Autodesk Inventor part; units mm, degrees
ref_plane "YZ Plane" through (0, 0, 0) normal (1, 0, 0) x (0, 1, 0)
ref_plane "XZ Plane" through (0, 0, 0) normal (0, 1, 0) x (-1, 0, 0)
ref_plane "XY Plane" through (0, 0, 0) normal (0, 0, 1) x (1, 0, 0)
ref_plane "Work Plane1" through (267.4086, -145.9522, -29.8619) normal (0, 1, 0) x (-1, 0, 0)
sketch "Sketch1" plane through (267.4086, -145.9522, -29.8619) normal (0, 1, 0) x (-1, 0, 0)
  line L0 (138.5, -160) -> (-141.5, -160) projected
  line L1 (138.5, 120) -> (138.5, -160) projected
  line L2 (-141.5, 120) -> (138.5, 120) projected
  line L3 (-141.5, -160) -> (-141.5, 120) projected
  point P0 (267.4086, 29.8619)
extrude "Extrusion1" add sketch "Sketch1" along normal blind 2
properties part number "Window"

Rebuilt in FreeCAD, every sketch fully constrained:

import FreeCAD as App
import Part
import Sketcher
from FreeCAD import Vector
Q = App.Units.Quantity


def add_polygon(sketch, points):
    """Adds a closed chain of lines whose ends are joined by coincident constraints."""
    first, n = sketch.GeometryCount, len(points)
    for a, b in zip(points, points[1:] + points[:1]):
        sketch.addGeometry(Part.LineSegment(App.Vector(*a, 0), App.Vector(*b, 0)), False)
    for i in range(n):
        sketch.addConstraint(Sketcher.Constraint("Coincident", first + i, 2, first + (i + 1) % n, 1))

doc = App.newDocument("Part")
body = doc.addObject("PartDesign::Body", "Body")

# Sketch on XZ plane
sketch1 = body.newObject("Sketcher::SketchObject", "Sketch")
sketch1.AttachmentSupport = (doc.getObject("XZ_Plane"), [""])
sketch1.MapMode = "FlatFace"
sketch1.AttachmentOffset = App.Placement(Vector(0, 0, 145.9522), App.Rotation())
add_polygon(sketch1, [(409, -190), (129, -190), (129, 90), (409, 90)])  # lines 0-3
sketch1.addConstraint([
    Sketcher.Constraint("Horizontal", 0),
    Sketcher.Constraint("Vertical", 1),
    Sketcher.Constraint("Horizontal", 2),
    Sketcher.Constraint("Vertical", 3),
    Sketcher.Constraint("Equal", 2, 1),
    Sketcher.Constraint("DistanceX", 0, 2, 0, 1, Q("280 mm")),
    Sketcher.Constraint("DistanceY", 0, 2, -1, 1, Q("189.862 mm")),
    Sketcher.Constraint("DistanceX", -1, 1, 0, 2, Q("128.9086 mm")),
])
pad1 = body.newObject("PartDesign::Pad", "Pad")
pad1.Profile = sketch1
pad1.Length = 2
pad1.Reversed = True

doc.recompute()
